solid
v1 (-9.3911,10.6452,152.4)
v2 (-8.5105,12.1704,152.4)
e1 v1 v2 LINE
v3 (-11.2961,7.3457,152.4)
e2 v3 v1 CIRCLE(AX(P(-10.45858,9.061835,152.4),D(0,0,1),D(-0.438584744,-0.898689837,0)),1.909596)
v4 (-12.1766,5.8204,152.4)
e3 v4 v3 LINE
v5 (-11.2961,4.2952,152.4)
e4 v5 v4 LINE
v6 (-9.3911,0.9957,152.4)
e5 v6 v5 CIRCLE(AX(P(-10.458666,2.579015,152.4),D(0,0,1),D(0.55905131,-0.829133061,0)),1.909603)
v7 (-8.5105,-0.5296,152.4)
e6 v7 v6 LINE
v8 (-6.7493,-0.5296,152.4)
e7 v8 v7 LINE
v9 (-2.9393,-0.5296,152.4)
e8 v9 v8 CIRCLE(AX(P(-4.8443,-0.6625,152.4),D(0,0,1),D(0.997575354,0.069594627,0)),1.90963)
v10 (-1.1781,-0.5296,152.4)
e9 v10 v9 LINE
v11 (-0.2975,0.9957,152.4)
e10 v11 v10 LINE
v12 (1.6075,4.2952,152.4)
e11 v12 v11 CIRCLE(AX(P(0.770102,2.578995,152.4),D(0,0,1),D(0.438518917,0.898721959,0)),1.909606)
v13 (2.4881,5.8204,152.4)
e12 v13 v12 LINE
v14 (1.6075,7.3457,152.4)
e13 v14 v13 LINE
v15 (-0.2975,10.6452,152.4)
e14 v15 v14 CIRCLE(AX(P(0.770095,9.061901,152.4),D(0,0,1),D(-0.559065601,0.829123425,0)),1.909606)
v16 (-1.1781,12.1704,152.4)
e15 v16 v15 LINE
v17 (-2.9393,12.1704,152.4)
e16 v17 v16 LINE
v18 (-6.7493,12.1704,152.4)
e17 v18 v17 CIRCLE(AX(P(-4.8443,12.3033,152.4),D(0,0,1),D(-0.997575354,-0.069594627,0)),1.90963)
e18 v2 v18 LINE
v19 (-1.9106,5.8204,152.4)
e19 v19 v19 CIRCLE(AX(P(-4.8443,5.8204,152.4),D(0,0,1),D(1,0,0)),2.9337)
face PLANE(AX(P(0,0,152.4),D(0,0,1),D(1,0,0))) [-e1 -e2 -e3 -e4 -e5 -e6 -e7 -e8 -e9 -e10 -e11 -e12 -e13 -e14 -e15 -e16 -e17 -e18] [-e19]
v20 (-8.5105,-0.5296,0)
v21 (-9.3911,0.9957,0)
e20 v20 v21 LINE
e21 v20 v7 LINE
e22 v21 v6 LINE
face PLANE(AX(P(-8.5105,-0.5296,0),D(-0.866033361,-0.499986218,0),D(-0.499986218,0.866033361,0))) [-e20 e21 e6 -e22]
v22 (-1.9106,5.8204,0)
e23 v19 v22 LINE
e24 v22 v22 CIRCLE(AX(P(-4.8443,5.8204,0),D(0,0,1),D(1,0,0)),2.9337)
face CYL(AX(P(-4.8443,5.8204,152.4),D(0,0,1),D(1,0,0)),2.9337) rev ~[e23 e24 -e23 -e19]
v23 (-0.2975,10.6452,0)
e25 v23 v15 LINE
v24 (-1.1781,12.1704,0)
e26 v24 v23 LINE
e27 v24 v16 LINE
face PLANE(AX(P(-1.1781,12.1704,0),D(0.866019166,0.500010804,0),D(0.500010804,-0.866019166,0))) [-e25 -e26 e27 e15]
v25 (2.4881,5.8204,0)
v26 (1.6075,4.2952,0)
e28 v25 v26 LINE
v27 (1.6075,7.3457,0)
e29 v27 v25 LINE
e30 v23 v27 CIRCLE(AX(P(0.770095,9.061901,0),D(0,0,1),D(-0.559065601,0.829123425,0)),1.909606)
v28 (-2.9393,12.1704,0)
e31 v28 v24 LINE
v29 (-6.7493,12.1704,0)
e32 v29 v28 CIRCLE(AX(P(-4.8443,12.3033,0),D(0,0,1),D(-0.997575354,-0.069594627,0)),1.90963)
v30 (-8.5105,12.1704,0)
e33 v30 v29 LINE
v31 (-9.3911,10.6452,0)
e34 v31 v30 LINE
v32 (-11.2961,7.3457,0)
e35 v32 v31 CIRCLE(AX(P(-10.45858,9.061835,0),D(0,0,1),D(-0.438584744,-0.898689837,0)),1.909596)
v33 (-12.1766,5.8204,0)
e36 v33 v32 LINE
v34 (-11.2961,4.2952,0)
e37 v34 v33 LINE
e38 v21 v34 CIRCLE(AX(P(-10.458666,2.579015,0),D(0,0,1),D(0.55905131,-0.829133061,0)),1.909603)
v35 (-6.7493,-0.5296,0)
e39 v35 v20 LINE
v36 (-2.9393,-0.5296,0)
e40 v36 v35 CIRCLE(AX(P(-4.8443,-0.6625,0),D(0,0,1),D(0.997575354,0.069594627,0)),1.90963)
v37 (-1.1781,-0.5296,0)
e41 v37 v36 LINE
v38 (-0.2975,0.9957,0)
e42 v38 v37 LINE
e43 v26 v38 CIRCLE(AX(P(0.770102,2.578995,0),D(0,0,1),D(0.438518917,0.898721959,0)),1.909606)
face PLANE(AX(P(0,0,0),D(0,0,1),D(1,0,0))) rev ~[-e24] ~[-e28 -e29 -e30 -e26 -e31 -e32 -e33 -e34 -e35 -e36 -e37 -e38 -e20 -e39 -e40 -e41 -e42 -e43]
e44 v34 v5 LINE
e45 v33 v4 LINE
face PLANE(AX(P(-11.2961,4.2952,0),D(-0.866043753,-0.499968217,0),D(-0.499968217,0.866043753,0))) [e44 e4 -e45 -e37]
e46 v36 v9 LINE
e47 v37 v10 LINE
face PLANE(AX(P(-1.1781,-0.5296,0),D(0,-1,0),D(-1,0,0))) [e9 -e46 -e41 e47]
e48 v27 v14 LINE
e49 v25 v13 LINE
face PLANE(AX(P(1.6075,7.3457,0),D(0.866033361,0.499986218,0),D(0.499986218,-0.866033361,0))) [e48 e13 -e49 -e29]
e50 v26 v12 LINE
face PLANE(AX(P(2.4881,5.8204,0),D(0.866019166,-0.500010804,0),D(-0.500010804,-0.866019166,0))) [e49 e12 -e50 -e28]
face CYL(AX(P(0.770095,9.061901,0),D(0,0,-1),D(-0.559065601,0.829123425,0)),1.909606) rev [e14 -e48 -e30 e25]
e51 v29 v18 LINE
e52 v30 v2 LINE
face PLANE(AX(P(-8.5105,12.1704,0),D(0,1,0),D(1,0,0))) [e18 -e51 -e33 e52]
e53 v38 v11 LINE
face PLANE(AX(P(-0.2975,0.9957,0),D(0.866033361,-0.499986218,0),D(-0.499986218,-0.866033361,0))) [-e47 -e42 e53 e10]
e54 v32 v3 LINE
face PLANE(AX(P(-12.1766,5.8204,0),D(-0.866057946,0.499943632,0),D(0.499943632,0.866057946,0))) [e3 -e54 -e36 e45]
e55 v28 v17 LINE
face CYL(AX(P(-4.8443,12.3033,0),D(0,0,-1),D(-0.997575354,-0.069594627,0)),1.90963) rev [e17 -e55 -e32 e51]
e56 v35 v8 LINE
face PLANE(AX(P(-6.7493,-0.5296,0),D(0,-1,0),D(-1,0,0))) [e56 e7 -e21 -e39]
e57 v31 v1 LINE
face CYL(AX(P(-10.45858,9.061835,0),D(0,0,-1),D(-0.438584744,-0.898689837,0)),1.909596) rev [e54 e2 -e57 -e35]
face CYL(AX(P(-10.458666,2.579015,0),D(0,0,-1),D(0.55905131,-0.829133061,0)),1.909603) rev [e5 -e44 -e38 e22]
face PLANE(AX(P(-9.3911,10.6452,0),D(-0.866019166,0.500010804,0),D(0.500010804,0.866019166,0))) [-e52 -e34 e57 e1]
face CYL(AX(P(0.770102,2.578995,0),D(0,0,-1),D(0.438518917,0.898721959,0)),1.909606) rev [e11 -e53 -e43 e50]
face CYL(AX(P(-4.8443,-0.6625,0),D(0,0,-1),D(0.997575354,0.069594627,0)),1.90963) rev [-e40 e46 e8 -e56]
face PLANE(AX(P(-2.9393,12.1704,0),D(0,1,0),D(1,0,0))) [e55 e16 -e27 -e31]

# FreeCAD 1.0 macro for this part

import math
import FreeCAD as App
import Part
import Sketcher
Q = App.Units.Quantity

doc = App.newDocument("Part")
body = doc.addObject("PartDesign::Body", "Body")

# Sketch on XY plane
sketch1 = doc.addObject("Sketcher::SketchObject", "Sketch")
body.addObject(sketch1)
sketch1.AttachmentSupport = (doc.XY_Plane, [""])
sketch1.MapMode = "FlatFace"
sketch1.addGeometry(Part.ArcOfCircle(Part.Circle(App.Vector(-4.8443, 12.3033, 0), App.Vector(0, 0, 1), 1.90963), math.radians(-176.009296), math.radians(-3.990704)), False)
sketch1.addGeometry(Part.LineSegment(App.Vector(-6.7493, 12.1704, 0), App.Vector(-8.5105, 12.1704, 0)), False)
sketch1.addGeometry(Part.LineSegment(App.Vector(-8.5105, 12.1704, 0), App.Vector(-9.3911, 10.6452, 0)), False)
sketch1.addGeometry(Part.ArcOfCircle(Part.Circle(App.Vector(-10.4586, 9.0619, 0), App.Vector(0, 0, 1), 1.909646), math.radians(-116.012225), math.radians(56.011177)), False)
sketch1.addGeometry(Part.LineSegment(App.Vector(-11.2961, 7.3457, 0), App.Vector(-12.1766, 5.8204, 0)), False)
sketch1.addGeometry(Part.LineSegment(App.Vector(-12.1766, 5.8204, 0), App.Vector(-11.2961, 4.2952, 0)), False)
sketch1.addGeometry(Part.ArcOfCircle(Part.Circle(App.Vector(-10.4586, 2.579, 0), App.Vector(0, 0, 1), 1.909554), math.radians(-56.011177), math.radians(116.012225)), False)
sketch1.addGeometry(Part.LineSegment(App.Vector(-9.3911, 0.9957, 0), App.Vector(-8.5105, -0.5296, 0)), False)
sketch1.addGeometry(Part.LineSegment(App.Vector(-8.5105, -0.5296, 0), App.Vector(-6.7493, -0.5296, 0)), False)
sketch1.addGeometry(Part.ArcOfCircle(Part.Circle(App.Vector(-4.8443, -0.6625, 0), App.Vector(0, 0, 1), 1.90963), math.radians(3.990704), math.radians(176.009296)), False)
sketch1.addGeometry(Part.LineSegment(App.Vector(-2.9393, -0.5296, 0), App.Vector(-1.1781, -0.5296, 0)), False)
sketch1.addGeometry(Part.LineSegment(App.Vector(-1.1781, -0.5296, 0), App.Vector(-0.2975, 0.9957, 0)), False)
sketch1.addGeometry(Part.ArcOfCircle(Part.Circle(App.Vector(0.7701, 2.579, 0), App.Vector(0, 0, 1), 1.909602), math.radians(63.990472), math.radians(236.008689)), False)
sketch1.addGeometry(Part.LineSegment(App.Vector(1.6075, 4.2952, 0), App.Vector(2.4881, 5.8204, 0)), False)
sketch1.addGeometry(Part.LineSegment(App.Vector(2.4881, 5.8204, 0), App.Vector(1.6075, 7.3457, 0)), False)
sketch1.addGeometry(Part.ArcOfCircle(Part.Circle(App.Vector(0.7701, 9.0619, 0), App.Vector(0, 0, 1), 1.90961), math.radians(123.991311), math.radians(296.009528)), False)
sketch1.addGeometry(Part.LineSegment(App.Vector(-0.2975, 10.6452, 0), App.Vector(-1.1781, 12.1704, 0)), False)
sketch1.addGeometry(Part.LineSegment(App.Vector(-1.1781, 12.1704, 0), App.Vector(-2.9393, 12.1704, 0)), False)
sketch1.addConstraint(Sketcher.Constraint("Coincident", 0, 1, 1, 1))
sketch1.addConstraint(Sketcher.Constraint("Coincident", 1, 2, 2, 1))
sketch1.addConstraint(Sketcher.Constraint("Coincident", 2, 2, 3, 2))
sketch1.addConstraint(Sketcher.Constraint("Coincident", 3, 1, 4, 1))
sketch1.addConstraint(Sketcher.Constraint("Coincident", 4, 2, 5, 1))
sketch1.addConstraint(Sketcher.Constraint("Coincident", 5, 2, 6, 2))
sketch1.addConstraint(Sketcher.Constraint("Coincident", 6, 1, 7, 1))
sketch1.addConstraint(Sketcher.Constraint("Coincident", 7, 2, 8, 1))
sketch1.addConstraint(Sketcher.Constraint("Coincident", 8, 2, 9, 2))
sketch1.addConstraint(Sketcher.Constraint("Coincident", 9, 1, 10, 1))
sketch1.addConstraint(Sketcher.Constraint("Coincident", 10, 2, 11, 1))
sketch1.addConstraint(Sketcher.Constraint("Coincident", 11, 2, 12, 2))
sketch1.addConstraint(Sketcher.Constraint("Coincident", 12, 1, 13, 1))
sketch1.addConstraint(Sketcher.Constraint("Coincident", 13, 2, 14, 1))
sketch1.addConstraint(Sketcher.Constraint("Coincident", 14, 2, 15, 2))
sketch1.addConstraint(Sketcher.Constraint("Coincident", 15, 1, 16, 1))
sketch1.addConstraint(Sketcher.Constraint("Coincident", 16, 2, 17, 1))
sketch1.addConstraint(Sketcher.Constraint("Coincident", 17, 2, 0, 2))
sketch1.addConstraint(Sketcher.Constraint("Horizontal", 1))
sketch1.addConstraint(Sketcher.Constraint("Horizontal", 8))
sketch1.addConstraint(Sketcher.Constraint("Horizontal", 10))
sketch1.addConstraint(Sketcher.Constraint("Horizontal", 17))
sketch1.addConstraint(Sketcher.Constraint("Radius", 0, 1.9096))
sketch1.addConstraint(Sketcher.Constraint("Radius", 3, 1.9096))
sketch1.addConstraint(Sketcher.Constraint("Radius", 6, 1.9096))
sketch1.addConstraint(Sketcher.Constraint("Radius", 9, 1.9096))
sketch1.addConstraint(Sketcher.Constraint("Radius", 12, 1.9096))
sketch1.addConstraint(Sketcher.Constraint("Radius", 15, 1.9096))
sketch1.addConstraint(Sketcher.Constraint("DistanceY", 4, 2, 1, 2, Q("0.25 in")))
sketch1.addConstraint(Sketcher.Constraint("DistanceY", 5, 2, 2, 2, Q("0.25 in")))
sketch1.addConstraint(Sketcher.Constraint("DistanceY", 6, 1, 3, 1, Q("0.25 in")))
sketch1.addConstraint(Sketcher.Constraint("DistanceY", 7, 2, 4, 2, Q("0.25 in")))
sketch1.addConstraint(Sketcher.Constraint("DistanceX", 8, 2, 9, 1, Q("0.15 in")))
sketch1.addConstraint(Sketcher.Constraint("DistanceY", 10, 2, 13, 2, Q("0.25 in")))
sketch1.addConstraint(Sketcher.Constraint("DistanceY", 11, 2, 14, 2, Q("0.25 in")))
sketch1.addConstraint(Sketcher.Constraint("DistanceY", 12, 1, 15, 1, Q("0.25 in")))
sketch1.addConstraint(Sketcher.Constraint("DistanceX", 0, 1, 17, 2, Q("0.15 in")))
sketch1.addConstraint(Sketcher.Constraint("DistanceY", -1, 1, 0, 3, Q("0.4843819 in")))
sketch1.addConstraint(Sketcher.Constraint("DistanceX", 0, 1, 0, 3, Q("0.075 in")))
sketch1.addConstraint(Sketcher.Constraint("DistanceX", 2, 2, 0, 1, Q("0.104 in")))
sketch1.addConstraint(Sketcher.Constraint("DistanceX", 3, 1, 2, 2, Q("0.075 in")))
sketch1.addConstraint(Sketcher.Constraint("DistanceX", 5, 2, 2, 2, Q("0.075 in")))
sketch1.addConstraint(Sketcher.Constraint("DistanceX", 5, 2, 6, 1, Q("0.075 in")))
sketch1.addConstraint(Sketcher.Constraint("DistanceX", 6, 1, 9, 3, Q("0.179 in")))
sketch1.addConstraint(Sketcher.Constraint("DistanceX", 8, 2, 9, 3, Q("0.075 in")))
sketch1.addConstraint(Sketcher.Constraint("DistanceX", 9, 1, 11, 2, Q("0.104 in")))
sketch1.addConstraint(Sketcher.Constraint("DistanceX", 11, 2, 12, 1, Q("0.075 in")))
sketch1.addConstraint(Sketcher.Constraint("DistanceX", 11, 2, 14, 2, Q("0.075 in")))
sketch1.addConstraint(Sketcher.Constraint("DistanceX", 15, 1, 14, 2, Q("0.075 in")))
sketch1.addConstraint(Sketcher.Constraint("DistanceX", 1, 2, 1, 1, 1.7612))
sketch1.addConstraint(Sketcher.Constraint("DistanceX", 8, 1, 8, 2, 1.7612))
sketch1.addConstraint(Sketcher.Constraint("DistanceX", 10, 1, 10, 2, 1.7612))
sketch1.addConstraint(Sketcher.Constraint("DistanceX", 17, 2, 17, 1, 1.7612))
sketch1.addConstraint(Sketcher.Constraint("DistanceY", -1, 1, 2, 2, Q("0.4191 in")))
sketch1.addConstraint(Sketcher.Constraint("DistanceY", -1, 1, 3, 1, Q("0.2892 in")))
sketch1.addConstraint(Sketcher.Constraint("DistanceX", 4, 2, -1, 1, Q("0.4794 in")))
sketch1.addConstraint(Sketcher.Constraint("DistanceY", -1, 1, 11, 2, Q("0.0392 in")))
sketch1.addConstraint(Sketcher.Constraint("DistanceY", -1, 1, 12, 1, Q("0.1691 in")))
sketch1.addConstraint(Sketcher.Constraint("Distance", 4, 1.7612))
sketch1.addConstraint(Sketcher.Constraint("Distance", 13, 1.7612))
pad1 = doc.addObject("PartDesign::Pad", "Pad")
body.addObject(pad1)
pad1.Profile = sketch1
pad1.Length = Q("6 in")

# Sketch on XY plane
sketch2 = doc.addObject("Sketcher::SketchObject", "Sketch001")
body.addObject(sketch2)
sketch2.AttachmentSupport = (doc.XY_Plane, [""])
sketch2.MapMode = "FlatFace"
sketch2.AttachmentOffset = App.Placement(App.Vector(0, 0, 6 * 25.4), App.Rotation())
sketch2.addGeometry(Part.Circle(App.Vector(-4.8443, 5.8204, 0), App.Vector(0, 0, 1), 2.9337), False)
sketch2.addConstraint(Sketcher.Constraint("Diameter", 0, Q("0.231 in")))
sketch2.addConstraint(Sketcher.Constraint("DistanceX", 0, 3, -1, 1, 4.8443))
sketch2.addConstraint(Sketcher.Constraint("DistanceY", -1, 1, 0, 3, 5.8204))
pocket1 = doc.addObject("PartDesign::Pocket", "Pocket")
body.addObject(pocket1)
pocket1.Profile = sketch2
pocket1.Length = Q("6 in")

doc.recompute()
